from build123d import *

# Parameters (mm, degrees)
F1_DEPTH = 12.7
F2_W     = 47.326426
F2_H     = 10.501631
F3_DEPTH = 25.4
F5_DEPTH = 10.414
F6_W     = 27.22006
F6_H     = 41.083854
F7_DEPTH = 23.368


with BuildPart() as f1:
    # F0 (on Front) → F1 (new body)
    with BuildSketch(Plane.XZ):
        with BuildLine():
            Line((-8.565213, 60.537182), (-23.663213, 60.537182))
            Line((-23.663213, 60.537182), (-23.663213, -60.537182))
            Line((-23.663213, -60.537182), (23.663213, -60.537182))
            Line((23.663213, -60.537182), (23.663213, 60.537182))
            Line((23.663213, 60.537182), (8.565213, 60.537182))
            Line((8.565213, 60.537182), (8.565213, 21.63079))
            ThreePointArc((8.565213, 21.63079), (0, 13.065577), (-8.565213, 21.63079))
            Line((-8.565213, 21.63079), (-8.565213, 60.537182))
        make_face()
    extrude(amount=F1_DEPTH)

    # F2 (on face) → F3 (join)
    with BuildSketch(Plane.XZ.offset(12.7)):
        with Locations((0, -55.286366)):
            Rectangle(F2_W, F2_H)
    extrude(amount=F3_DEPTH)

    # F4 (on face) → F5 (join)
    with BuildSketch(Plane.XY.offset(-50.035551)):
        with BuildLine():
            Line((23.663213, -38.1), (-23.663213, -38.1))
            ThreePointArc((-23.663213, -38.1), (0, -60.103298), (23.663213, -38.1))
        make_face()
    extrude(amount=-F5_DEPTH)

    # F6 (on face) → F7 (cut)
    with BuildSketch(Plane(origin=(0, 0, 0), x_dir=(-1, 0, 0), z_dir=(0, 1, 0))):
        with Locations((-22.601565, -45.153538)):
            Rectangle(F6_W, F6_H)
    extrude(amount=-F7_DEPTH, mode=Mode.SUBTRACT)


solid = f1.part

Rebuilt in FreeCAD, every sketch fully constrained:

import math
import FreeCAD as App
import Part
import Sketcher

V = App.Vector
Q = App.Units.Quantity


def add_polygon(sketch, points):
    """Adds a closed chain of lines whose ends are joined by coincident constraints."""
    first, n = sketch.GeometryCount, len(points)
    for a, b in zip(points, points[1:] + points[:1]):
        sketch.addGeometry(Part.LineSegment(App.Vector(*a, 0), App.Vector(*b, 0)), False)
    for i in range(n):
        sketch.addConstraint(Sketcher.Constraint("Coincident", first + i, 2, first + (i + 1) % n, 1))

doc = App.newDocument("Part")
body = doc.addObject("PartDesign::Body", "Body")

# Sketch on XZ plane
sketch1 = body.newObject("Sketcher::SketchObject", "Sketch")
sketch1.AttachmentSupport = (doc.getObject("XZ_Plane"), [""])
sketch1.MapMode = "FlatFace"
sketch1.addGeometry([
    Part.LineSegment(V(-9, 61, 0), V(-24, 61, 0)),  # 0
    Part.LineSegment(V(-24, 61, 0), V(-24, -61, 0)),  # 1
    Part.LineSegment(V(-24, -61, 0), V(24, -61, 0)),  # 2
    Part.LineSegment(V(24, -61, 0), V(24, 61, 0)),  # 3
    Part.LineSegment(V(24, 61, 0), V(9, 61, 0)),  # 4
    Part.LineSegment(V(9, 61, 0), V(9, 22, 0)),  # 5
    Part.ArcOfCircle(Part.Circle(V(0, 22, 0), V(0, 0, 1), 9), math.radians(180), math.radians(360)),  # 6
    Part.LineSegment(V(-9, 22, 0), V(-9, 61, 0)),  # 7
], False)
sketch1.addConstraint([
    Sketcher.Constraint("Coincident", 0, 2, 1, 1),
    Sketcher.Constraint("Coincident", 1, 2, 2, 1),
    Sketcher.Constraint("Coincident", 2, 2, 3, 1),
    Sketcher.Constraint("Coincident", 3, 2, 4, 1),
    Sketcher.Constraint("Coincident", 4, 2, 5, 1),
    Sketcher.Constraint("Tangent", 5, 2, 6, 2),
    Sketcher.Constraint("Tangent", 6, 1, 7, 1),
    Sketcher.Constraint("Coincident", 7, 2, 0, 1),
    Sketcher.Constraint("Horizontal", 0),
    Sketcher.Constraint("Vertical", 1),
    Sketcher.Constraint("Horizontal", 2),
    Sketcher.Constraint("Vertical", 3),
    Sketcher.Constraint("Horizontal", 4),
    Sketcher.Constraint("Vertical", 5),
    Sketcher.Constraint("Vertical", 7),
    Sketcher.Constraint("Symmetric", 0, 2, 2, 2, -1, 1),
    Sketcher.Constraint("Symmetric", 4, 2, 7, 2, -2),
    Sketcher.Constraint("DistanceX", 0, 2, 0, 1, 15.098),
    Sketcher.Constraint("Radius", 6, 8.565213),
    Sketcher.Constraint("DistanceY", 5, 2, 5, 1, 38.906392),
    Sketcher.Constraint("DistanceY", 1, 2, 1, 1, 121.074364),
])
pad1 = body.newObject("PartDesign::Pad", "Pad")
pad1.Profile = sketch1
pad1.Length = Q("0.5 in")

# Sketch on XZ plane
sketch2 = body.newObject("Sketcher::SketchObject", "Sketch001")
sketch2.AttachmentSupport = (doc.getObject("XZ_Plane"), [""])
sketch2.MapMode = "FlatFace"
sketch2.AttachmentOffset = App.Placement(V(0, 0, 0.5 * 25.4), App.Rotation())
add_polygon(sketch2, [(-24, -50), (-24, -61), (24, -61), (24, -50)])  # lines 0-3
sketch2.addConstraint([
    Sketcher.Constraint("Vertical", 0),
    Sketcher.Constraint("Horizontal", 1),
    Sketcher.Constraint("Vertical", 2),
    Sketcher.Constraint("Horizontal", 3),
    Sketcher.Constraint("DistanceY", 0, 2, 0, 1, 10.501631),
    Sketcher.Constraint("DistanceX", 1, 1, 1, 2, 47.326426),
    Sketcher.Constraint("DistanceY", 0, 2, -1, 1, 60.537182),
    Sketcher.Constraint("DistanceX", 0, 2, -1, 1, 23.663213),
])
pad2 = body.newObject("PartDesign::Pad", "Pad001")
pad2.Profile = sketch2
pad2.Length = Q("1 in")

# Sketch on XY plane
sketch3 = body.newObject("Sketcher::SketchObject", "Sketch002")
sketch3.AttachmentSupport = (doc.getObject("XY_Plane"), [""])
sketch3.MapMode = "FlatFace"
sketch3.AttachmentOffset = App.Placement(V(0, 0, -50.035551), App.Rotation())
sketch3.addGeometry([
    Part.LineSegment(V(24, -38, 0), V(-24, -38, 0)),
    Part.ArcOfCircle(Part.Circle(V(0, -36, 0), V(0, 0, 1), 24), math.radians(-176), math.radians(-4)),
], False)
sketch3.addConstraint([
    Sketcher.Constraint("Coincident", 0, 1, 1, 2),
    Sketcher.Constraint("Coincident", 1, 1, 0, 2),
    Sketcher.Constraint("Horizontal", 0),
    Sketcher.Constraint("PointOnObject", 1, 3, -2),
    Sketcher.Constraint("DistanceY", 0, 1, -1, 1, Q("1.5 in")),
    Sketcher.Constraint("Radius", 1, 23.725824),
    Sketcher.Constraint("DistanceX", 0, 2, 0, 1, 47.326426),
])
pad3 = body.newObject("PartDesign::Pad", "Pad002")
pad3.Profile = sketch3
pad3.Length = Q("0.41 in")
pad3.Reversed = True

# Sketch on XZ plane
sketch4 = body.newObject("Sketcher::SketchObject", "Sketch003")
sketch4.AttachmentSupport = (doc.getObject("XZ_Plane"), [""])
sketch4.MapMode = "FlatFace"
add_polygon(sketch4, [(36, -25), (36, -66), (9, -66), (9, -25)])  # lines 0-3
sketch4.addConstraint([
    Sketcher.Constraint("Vertical", 0),
    Sketcher.Constraint("Horizontal", 1),
    Sketcher.Constraint("Vertical", 2),
    Sketcher.Constraint("Horizontal", 3),
    Sketcher.Constraint("DistanceX", 1, 2, 1, 1, 27.22006),
    Sketcher.Constraint("DistanceY", 0, 2, 0, 1, 41.083854),
    Sketcher.Constraint("DistanceY", 2, 2, -1, 1, 24.611611),
    Sketcher.Constraint("DistanceX", -1, 1, 0, 2, 36.211595),
])
pocket1 = body.newObject("PartDesign::Pocket", "Pocket")
pocket1.Profile = sketch4
pocket1.Length = Q("0.92 in")
pocket1.Reversed = True

doc.recompute()
